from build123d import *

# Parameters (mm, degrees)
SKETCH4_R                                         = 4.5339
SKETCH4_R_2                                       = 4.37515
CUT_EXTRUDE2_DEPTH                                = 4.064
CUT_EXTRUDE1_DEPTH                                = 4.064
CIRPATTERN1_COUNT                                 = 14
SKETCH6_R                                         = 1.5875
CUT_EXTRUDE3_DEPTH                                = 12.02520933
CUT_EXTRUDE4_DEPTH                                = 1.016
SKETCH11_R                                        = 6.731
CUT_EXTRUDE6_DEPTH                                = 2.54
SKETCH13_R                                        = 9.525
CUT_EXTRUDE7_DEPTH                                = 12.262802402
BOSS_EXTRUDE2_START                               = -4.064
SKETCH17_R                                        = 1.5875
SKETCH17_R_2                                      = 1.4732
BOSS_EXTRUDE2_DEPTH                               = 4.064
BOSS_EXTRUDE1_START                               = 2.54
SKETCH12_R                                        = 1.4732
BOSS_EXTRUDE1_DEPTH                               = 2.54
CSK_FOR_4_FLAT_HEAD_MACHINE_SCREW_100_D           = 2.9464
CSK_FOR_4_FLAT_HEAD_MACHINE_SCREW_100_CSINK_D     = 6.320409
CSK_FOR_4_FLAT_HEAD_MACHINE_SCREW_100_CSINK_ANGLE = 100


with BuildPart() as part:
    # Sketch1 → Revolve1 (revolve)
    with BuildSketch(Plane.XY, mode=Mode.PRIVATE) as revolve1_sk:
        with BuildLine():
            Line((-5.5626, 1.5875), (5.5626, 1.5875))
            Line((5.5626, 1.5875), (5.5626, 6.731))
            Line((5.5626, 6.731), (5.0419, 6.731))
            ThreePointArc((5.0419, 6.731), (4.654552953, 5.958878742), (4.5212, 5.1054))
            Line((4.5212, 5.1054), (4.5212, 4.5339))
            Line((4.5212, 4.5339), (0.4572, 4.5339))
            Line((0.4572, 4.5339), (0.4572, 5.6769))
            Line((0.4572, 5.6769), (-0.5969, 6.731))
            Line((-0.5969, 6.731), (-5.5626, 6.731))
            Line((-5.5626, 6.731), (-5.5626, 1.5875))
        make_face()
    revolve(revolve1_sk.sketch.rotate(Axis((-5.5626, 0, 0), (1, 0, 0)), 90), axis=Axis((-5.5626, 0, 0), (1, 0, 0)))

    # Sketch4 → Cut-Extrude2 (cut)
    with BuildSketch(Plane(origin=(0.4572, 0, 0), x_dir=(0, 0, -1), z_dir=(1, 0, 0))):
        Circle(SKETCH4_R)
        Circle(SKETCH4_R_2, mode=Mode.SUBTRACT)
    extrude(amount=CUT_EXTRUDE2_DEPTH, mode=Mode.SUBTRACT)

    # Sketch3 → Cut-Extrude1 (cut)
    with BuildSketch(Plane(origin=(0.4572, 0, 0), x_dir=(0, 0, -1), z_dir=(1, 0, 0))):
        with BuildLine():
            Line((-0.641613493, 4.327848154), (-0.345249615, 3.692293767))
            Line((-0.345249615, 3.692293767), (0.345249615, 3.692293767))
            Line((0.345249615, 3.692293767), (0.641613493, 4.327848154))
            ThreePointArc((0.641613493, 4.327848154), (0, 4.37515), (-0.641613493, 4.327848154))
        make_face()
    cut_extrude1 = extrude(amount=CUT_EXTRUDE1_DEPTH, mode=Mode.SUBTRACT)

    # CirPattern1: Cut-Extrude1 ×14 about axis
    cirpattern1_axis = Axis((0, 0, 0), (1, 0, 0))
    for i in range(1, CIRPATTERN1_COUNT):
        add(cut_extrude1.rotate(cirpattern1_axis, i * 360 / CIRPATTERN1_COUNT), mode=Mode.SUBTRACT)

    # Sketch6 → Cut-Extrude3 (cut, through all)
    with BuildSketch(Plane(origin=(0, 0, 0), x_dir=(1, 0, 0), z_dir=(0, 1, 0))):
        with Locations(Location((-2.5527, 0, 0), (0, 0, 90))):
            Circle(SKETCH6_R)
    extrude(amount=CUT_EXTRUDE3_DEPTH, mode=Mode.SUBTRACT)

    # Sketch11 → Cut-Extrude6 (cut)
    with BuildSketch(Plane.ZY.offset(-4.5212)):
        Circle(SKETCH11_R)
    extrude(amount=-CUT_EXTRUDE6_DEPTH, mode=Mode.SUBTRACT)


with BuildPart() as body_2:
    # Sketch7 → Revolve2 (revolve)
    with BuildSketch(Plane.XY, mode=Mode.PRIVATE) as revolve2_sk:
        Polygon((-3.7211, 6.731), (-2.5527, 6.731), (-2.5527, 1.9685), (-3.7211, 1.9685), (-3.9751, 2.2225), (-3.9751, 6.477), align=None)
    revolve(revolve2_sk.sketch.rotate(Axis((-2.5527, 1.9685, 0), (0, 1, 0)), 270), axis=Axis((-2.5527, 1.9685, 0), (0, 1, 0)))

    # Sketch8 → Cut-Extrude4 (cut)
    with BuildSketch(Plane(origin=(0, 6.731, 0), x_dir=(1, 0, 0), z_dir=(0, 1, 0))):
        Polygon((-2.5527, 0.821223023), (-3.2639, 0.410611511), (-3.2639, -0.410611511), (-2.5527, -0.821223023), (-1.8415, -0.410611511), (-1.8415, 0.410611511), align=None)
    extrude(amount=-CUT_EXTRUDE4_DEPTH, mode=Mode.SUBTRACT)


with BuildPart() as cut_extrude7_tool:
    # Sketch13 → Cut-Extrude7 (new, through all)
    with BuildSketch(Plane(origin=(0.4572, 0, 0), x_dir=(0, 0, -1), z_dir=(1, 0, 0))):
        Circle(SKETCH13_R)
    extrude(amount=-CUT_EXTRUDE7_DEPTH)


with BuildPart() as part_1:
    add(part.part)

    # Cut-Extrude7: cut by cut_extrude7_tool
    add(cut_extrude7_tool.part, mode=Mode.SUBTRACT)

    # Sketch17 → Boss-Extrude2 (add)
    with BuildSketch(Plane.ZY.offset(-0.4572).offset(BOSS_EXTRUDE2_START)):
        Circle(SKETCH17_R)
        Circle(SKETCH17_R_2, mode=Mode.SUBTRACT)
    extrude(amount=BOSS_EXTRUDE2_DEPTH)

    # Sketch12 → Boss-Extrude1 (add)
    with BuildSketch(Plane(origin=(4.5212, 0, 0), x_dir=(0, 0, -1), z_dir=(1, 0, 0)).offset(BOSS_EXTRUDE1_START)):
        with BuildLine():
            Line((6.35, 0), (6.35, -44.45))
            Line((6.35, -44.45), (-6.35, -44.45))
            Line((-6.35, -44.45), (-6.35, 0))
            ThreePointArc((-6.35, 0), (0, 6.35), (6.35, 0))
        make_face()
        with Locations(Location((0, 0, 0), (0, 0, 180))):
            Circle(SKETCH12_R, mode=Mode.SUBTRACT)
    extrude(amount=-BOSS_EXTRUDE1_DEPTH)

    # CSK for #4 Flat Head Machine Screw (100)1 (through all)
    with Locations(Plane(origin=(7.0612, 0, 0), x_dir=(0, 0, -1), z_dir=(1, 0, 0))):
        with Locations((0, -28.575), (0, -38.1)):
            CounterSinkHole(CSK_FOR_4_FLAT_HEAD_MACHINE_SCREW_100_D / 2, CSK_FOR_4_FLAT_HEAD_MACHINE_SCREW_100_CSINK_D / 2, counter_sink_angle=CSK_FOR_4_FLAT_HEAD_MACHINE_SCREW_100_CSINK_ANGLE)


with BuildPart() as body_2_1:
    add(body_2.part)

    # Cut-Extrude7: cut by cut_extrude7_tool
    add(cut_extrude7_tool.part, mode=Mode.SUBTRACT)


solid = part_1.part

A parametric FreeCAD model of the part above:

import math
import FreeCAD as App
import Part
import Sketcher
from FreeCAD import Vector
Q = App.Units.Quantity

doc = App.newDocument("Part")
body = doc.addObject("PartDesign::Body", "Body")

# Sketch on XY plane
sketch1 = body.newObject("Sketcher::SketchObject", "Sketch")
sketch1.AttachmentSupport = (doc.getObject("XY_Plane"), [""])
sketch1.MapMode = "FlatFace"
sketch1.addGeometry([
    Part.LineSegment(Vector(-5.6, 1.6, 0), Vector(5.6, 1.6, 0)),  # 0
    Part.LineSegment(Vector(5.6, 1.6, 0), Vector(5.6, 6.7, 0)),  # 1
    Part.LineSegment(Vector(5.6, 6.7, 0), Vector(5, 6.7, 0)),  # 2
    Part.ArcOfCircle(Part.Circle(Vector(7.3, 5.1, 0), Vector(0, 0, 1), 2.8), math.radians(144), math.radians(180)),  # 3
    Part.LineSegment(Vector(4.5, 5.1, 0), Vector(4.5, 4.5, 0)),  # 4
    Part.LineSegment(Vector(4.5, 4.5, 0), Vector(0.5, 4.5, 0)),  # 5
    Part.LineSegment(Vector(0.5, 4.5, 0), Vector(0.5, 5.7, 0)),  # 6
    Part.LineSegment(Vector(0.5, 5.7, 0), Vector(-0.6, 6.7, 0)),  # 7
    Part.LineSegment(Vector(-0.6, 6.7, 0), Vector(-5.6, 6.7, 0)),  # 8
    Part.LineSegment(Vector(-5.6, 6.7, 0), Vector(-5.6, 1.6, 0)),  # 9
], False)
sketch1.addConstraint([
    Sketcher.Constraint("Coincident", 0, 2, 1, 1),
    Sketcher.Constraint("Coincident", 1, 2, 2, 1),
    Sketcher.Constraint("Coincident", 2, 2, 3, 1),
    Sketcher.Constraint("Tangent", 3, 2, 4, 1),
    Sketcher.Constraint("Coincident", 4, 2, 5, 1),
    Sketcher.Constraint("Coincident", 5, 2, 6, 1),
    Sketcher.Constraint("Coincident", 6, 2, 7, 1),
    Sketcher.Constraint("Coincident", 7, 2, 8, 1),
    Sketcher.Constraint("Coincident", 8, 2, 9, 1),
    Sketcher.Constraint("Coincident", 9, 2, 0, 1),
    Sketcher.Constraint("Horizontal", 0),
    Sketcher.Constraint("Vertical", 1),
    Sketcher.Constraint("Horizontal", 2),
    Sketcher.Constraint("Vertical", 4),
    Sketcher.Constraint("Horizontal", 5),
    Sketcher.Constraint("Vertical", 6),
    Sketcher.Constraint("Horizontal", 8),
    Sketcher.Constraint("Vertical", 9),
    Sketcher.Constraint("Symmetric", 1, 2, 8, 2, -2),
    Sketcher.Constraint("Angle", 7, Q("135 deg")),
    Sketcher.Constraint("DistanceX", 5, 2, 5, 1, Q("0.16 in")),
    Sketcher.Constraint("DistanceX", 0, 1, 0, 2, Q("0.438 in")),
    Sketcher.Constraint("DistanceY", 6, 1, 6, 2, Q("0.045 in")),
    Sketcher.Constraint("DistanceX", 2, 2, 2, 1, Q("0.0205 in")),
    Sketcher.Constraint("DistanceX", 8, 2, 8, 1, Q("0.1955 in")),
    Sketcher.Constraint("DistanceY", 1, 1, 1, 2, Q("0.2025 in")),
    Sketcher.Constraint("DistanceY", 4, 2, 4, 1, Q("0.0225 in")),
    Sketcher.Constraint("DistanceY", -1, 1, 3, 3, Q("0.201 in")),
    Sketcher.Constraint("DistanceY", -1, 1, 0, 2, Q("0.0625 in")),
])
revolution = body.newObject("PartDesign::Revolution", "Revolution")
revolution.Profile = sketch1
revolution.ReferenceAxis = (sketch1, ["H_Axis"])
revolution.Angle = 360

# Sketch on YZ plane
sketch2 = body.newObject("Sketcher::SketchObject", "Sketch001")
sketch2.AttachmentSupport = (doc.getObject("YZ_Plane"), [""])
sketch2.MapMode = "FlatFace"
sketch2.AttachmentOffset = App.Placement(Vector(0, 0, 0.018 * 25.4), App.Rotation())
sketch2.addGeometry([
    Part.Circle(Vector(0, 0, 0), Vector(0, 0, 1), 4.5),
    Part.Circle(Vector(0, 0, 0), Vector(0, 0, 1), 4.4),
], False)
sketch2.addConstraint([
    Sketcher.Constraint("Coincident", 0, 3, -1, 1),
    Sketcher.Constraint("Coincident", 1, 3, -1, 1),
    Sketcher.Constraint("Diameter", 0, Q("0.357 in")),
    Sketcher.Constraint("Diameter", 1, Q("0.3445 in")),
])
pocket1 = body.newObject("PartDesign::Pocket", "Pocket")
pocket1.Profile = sketch2
pocket1.Length = Q("0.16 in")
pocket1.Reversed = True

# Sketch on YZ plane
sketch3 = body.newObject("Sketcher::SketchObject", "Sketch002")
sketch3.AttachmentSupport = (doc.getObject("YZ_Plane"), [""])
sketch3.MapMode = "FlatFace"
sketch3.AttachmentOffset = App.Placement(Vector(0, 0, 0.018 * 25.4), App.Rotation())
sketch3.addGeometry([
    Part.LineSegment(Vector(4.3, 0.6, 0), Vector(3.7, 0.3, 0)),
    Part.LineSegment(Vector(3.7, 0.3, 0), Vector(3.7, -0.3, 0)),
    Part.LineSegment(Vector(3.7, -0.3, 0), Vector(4.3, -0.6, 0)),
    Part.ArcOfCircle(Part.Circle(Vector(0, 0, 0), Vector(0, 0, 1), 4.4), math.radians(-8.43), math.radians(8.43)),
], False)
sketch3.addConstraint([
    Sketcher.Constraint("Coincident", 0, 2, 1, 1),
    Sketcher.Constraint("Coincident", 1, 2, 2, 1),
    Sketcher.Constraint("Coincident", 2, 2, 3, 1),
    Sketcher.Constraint("Coincident", 3, 2, 0, 1),
    Sketcher.Constraint("Vertical", 1),
    Sketcher.Constraint("Coincident", 3, 3, -1, 1),
    Sketcher.Constraint("Vertical", 2, 2, 3, 2),
    Sketcher.Constraint("Equal", 0, 2),
    Sketcher.Constraint("Angle", 0, Q("-155 deg")),
    Sketcher.Constraint("Radius", 3, Q("4.37515 mm")),
    Sketcher.Constraint("DistanceY", 1, 2, 1, 1, Q("0.690499 mm")),
    Sketcher.Constraint("DistanceX", -1, 1, 2, 2, Q("4.327848 mm")),
])
pocket2 = body.newObject("PartDesign::Pocket", "Pocket001")
pocket2.Profile = sketch3
pocket2.Length = Q("0.16 in")
pocket2.Reversed = True
doc.recompute()

polarpattern = body.newObject("PartDesign::PolarPattern", "PolarPattern")
polarpattern.Originals = [pocket2]
polarpattern.Axis = (doc.getObject("X_Axis"), [""])
polarpattern.Angle = 360
polarpattern.Occurrences = 14
body.Tip = polarpattern

# Sketch on XZ plane
sketch4 = body.newObject("Sketcher::SketchObject", "Sketch003")
sketch4.AttachmentSupport = (doc.getObject("XZ_Plane"), [""])
sketch4.MapMode = "FlatFace"
sketch4.addGeometry(Part.Circle(Vector(-2.6, 0, 0), Vector(0, 0, 1), 1.6), False)
sketch4.addConstraint([
    Sketcher.Constraint("PointOnObject", 0, 3, -1),
    Sketcher.Constraint("Diameter", 0, Q("0.125 in")),
    Sketcher.Constraint("DistanceX", 0, 3, -1, 1, Q("0.1005 in")),
])
pocket3 = body.newObject("PartDesign::Pocket", "Pocket002")
pocket3.Profile = sketch4
pocket3.Type = "ThroughAll"

# Sketch on YZ plane
sketch5 = body.newObject("Sketcher::SketchObject", "Sketch004")
sketch5.AttachmentSupport = (doc.getObject("YZ_Plane"), [""])
sketch5.MapMode = "FlatFace"
sketch5.AttachmentOffset = App.Placement(Vector(0, 0, 0.178 * 25.4), App.Rotation())
sketch5.addGeometry(Part.Circle(Vector(0, 0, 0), Vector(0, 0, 1), 7), False)
sketch5.addConstraint([
    Sketcher.Constraint("Coincident", 0, 3, -1, 1),
    Sketcher.Constraint("Diameter", 0, Q("0.53 in")),
])
pocket4 = body.newObject("PartDesign::Pocket", "Pocket003")
pocket4.Profile = sketch5
pocket4.Length = Q("0.1 in")
pocket4.Reversed = True
body2 = doc.addObject("PartDesign::Body", "Body001")

# Sketch on XY plane
sketch6 = body2.newObject("Sketcher::SketchObject", "Sketch005")
sketch6.AttachmentSupport = (doc.getObject("XY_Plane001"), [""])
sketch6.MapMode = "FlatFace"
sketch6.addGeometry([
    Part.LineSegment(Vector(-2.55, 6.73, 0), Vector(-3.72, 6.73, 0)),  # 0
    Part.LineSegment(Vector(-3.72, 6.73, 0), Vector(-3.98, 6.48, 0)),  # 1
    Part.LineSegment(Vector(-3.98, 6.48, 0), Vector(-3.98, 2.22, 0)),  # 2
    Part.LineSegment(Vector(-3.98, 2.22, 0), Vector(-3.72, 1.97, 0)),  # 3
    Part.LineSegment(Vector(-3.72, 1.97, 0), Vector(-2.55, 1.97, 0)),  # 4
    Part.LineSegment(Vector(-2.55, 1.97, 0), Vector(-2.55, 6.73, 0)),  # 5
], False)
sketch6.addGeometry(Part.LineSegment(Vector(-2.55, 1.97, 0), Vector(-2.55, 6.73, 0)), True)  # axis
sketch6.addConstraint([
    Sketcher.Constraint("Coincident", 0, 2, 1, 1),
    Sketcher.Constraint("Coincident", 1, 2, 2, 1),
    Sketcher.Constraint("Coincident", 2, 2, 3, 1),
    Sketcher.Constraint("Coincident", 3, 2, 4, 1),
    Sketcher.Constraint("Coincident", 4, 2, 5, 1),
    Sketcher.Constraint("Coincident", 5, 2, 0, 1),
    Sketcher.Constraint("Horizontal", 0),
    Sketcher.Constraint("Vertical", 2),
    Sketcher.Constraint("Horizontal", 4),
    Sketcher.Constraint("Vertical", 5),
    Sketcher.Constraint("Vertical", 6),
    Sketcher.Constraint("Coincident", 6, 1, 4, 2),
    Sketcher.Constraint("Perpendicular", 1, 3),
    Sketcher.Constraint("Horizontal", 0, 2, 6, 2),
    Sketcher.Constraint("Vertical", 0, 2, 3, 2),
    Sketcher.Constraint("Equal", 1, 3),
    Sketcher.Constraint("DistanceX", 0, 2, 0, 1, Q("0.046 in")),
    Sketcher.Constraint("DistanceY", 5, 1, 5, 2, Q("0.1875 in")),
    Sketcher.Constraint("DistanceX", 1, 2, 0, 2, Q("0.01 in")),
    Sketcher.Constraint("DistanceY", -1, 1, 0, 2, Q("0.265 in")),
    Sketcher.Constraint("DistanceX", 0, 2, -1, 1, Q("0.1465 in")),
])
revolution2 = body2.newObject("PartDesign::Revolution", "Revolution001")
revolution2.Profile = sketch6
revolution2.ReferenceAxis = (sketch6, ["Axis0"])
revolution2.Angle = 360

# Sketch on XZ plane
sketch7 = body2.newObject("Sketcher::SketchObject", "Sketch006")
sketch7.AttachmentSupport = (doc.getObject("XZ_Plane001"), [""])
sketch7.MapMode = "FlatFace"
sketch7.AttachmentOffset = App.Placement(Vector(0, 0, -0.265 * 25.4), App.Rotation())
sketch7.addGeometry([
    Part.LineSegment(Vector(-2.6, -0.8, 0), Vector(-3.3, -0.4, 0)),  # 0
    Part.LineSegment(Vector(-3.3, -0.4, 0), Vector(-3.3, 0.4, 0)),  # 1
    Part.LineSegment(Vector(-3.3, 0.4, 0), Vector(-2.6, 0.8, 0)),  # 2
    Part.LineSegment(Vector(-2.6, 0.8, 0), Vector(-1.8, 0.4, 0)),  # 3
    Part.LineSegment(Vector(-1.8, 0.4, 0), Vector(-1.8, -0.4, 0)),  # 4
    Part.LineSegment(Vector(-1.8, -0.4, 0), Vector(-2.6, -0.8, 0)),  # 5
], False)
sketch7.addConstraint([
    Sketcher.Constraint("Coincident", 0, 2, 1, 1),
    Sketcher.Constraint("Coincident", 1, 2, 2, 1),
    Sketcher.Constraint("Coincident", 2, 2, 3, 1),
    Sketcher.Constraint("Coincident", 3, 2, 4, 1),
    Sketcher.Constraint("Coincident", 4, 2, 5, 1),
    Sketcher.Constraint("Coincident", 5, 2, 0, 1),
    Sketcher.Constraint("Vertical", 1),
    Sketcher.Constraint("Vertical", 4),
    Sketcher.Constraint("Symmetric", 2, 2, 5, 2, -1),
    Sketcher.Constraint("Parallel", 0, 3),
    Sketcher.Constraint("Parallel", 2, 5),
    Sketcher.Constraint("Horizontal", 1, 2, 3, 2),
    Sketcher.Constraint("Horizontal", 0, 2, 4, 2),
    Sketcher.Constraint("Angle", 0, Q("150 deg")),
    Sketcher.Constraint("DistanceX", 1, 2, 2, 2, Q("0.028 in")),
    Sketcher.Constraint("DistanceX", 0, 2, -1, 1, Q("0.1285 in")),
    Sketcher.Constraint("DistanceY", 1, 1, 1, 2, Q("0.821223 mm")),
])
pocket5 = body2.newObject("PartDesign::Pocket", "Pocket004")
pocket5.Profile = sketch7
pocket5.Length = Q("0.04 in")
pocket5.Reversed = True
body3 = doc.addObject("PartDesign::Body", "Body002")

# Sketch on YZ plane
sketch8 = body3.newObject("Sketcher::SketchObject", "Sketch007")
sketch8.AttachmentSupport = (doc.getObject("YZ_Plane002"), [""])
sketch8.MapMode = "FlatFace"
sketch8.AttachmentOffset = App.Placement(Vector(0, 0, 0.018 * 25.4), App.Rotation())
sketch8.addGeometry(Part.Circle(Vector(0, 0, 0), Vector(0, 0, 1), 10), False)
sketch8.addConstraint([
    Sketcher.Constraint("Coincident", 0, 3, -1, 1),
    Sketcher.Constraint("Diameter", 0, Q("0.75 in")),
])
pad1 = body3.newObject("PartDesign::Pad", "Pad")
pad1.Profile = sketch8
pad1.Length = 12.262802
pad1.Reversed = True
doc.recompute()

body4 = doc.addObject("PartDesign::Body", "Body003")
body4.BaseFeature = body3
boolean = body.newObject("PartDesign::Boolean", "Boolean")
boolean.Type = "Cut"
boolean.addObjects([body4])
doc.recompute()

# Sketch on YZ plane
sketch9 = body.newObject("Sketcher::SketchObject", "Sketch008")
sketch9.AttachmentSupport = (doc.getObject("YZ_Plane"), [""])
sketch9.MapMode = "FlatFace"
sketch9.AttachmentOffset = App.Placement(Vector(0, 0, 0.178 * 25.4), App.Rotation())
sketch9.addGeometry([
    Part.Circle(Vector(0, 0, 0), Vector(0, 0, 1), 1.6),
    Part.Circle(Vector(0, 0, 0), Vector(0, 0, 1), 1.5),
], False)
sketch9.addConstraint([
    Sketcher.Constraint("Coincident", 0, 3, -1, 1),
    Sketcher.Constraint("Coincident", 1, 3, -1, 1),
    Sketcher.Constraint("Diameter", 0, Q("0.125 in")),
    Sketcher.Constraint("Diameter", 1, Q("0.116 in")),
])
pad2 = body.newObject("PartDesign::Pad", "Pad001")
pad2.Profile = sketch9
pad2.Length = Q("0.16 in")
pad2.Reversed = True

# Sketch on YZ plane
sketch10 = body.newObject("Sketcher::SketchObject", "Sketch009")
sketch10.AttachmentSupport = (doc.getObject("YZ_Plane"), [""])
sketch10.MapMode = "FlatFace"
sketch10.AttachmentOffset = App.Placement(Vector(0, 0, 0.278 * 25.4), App.Rotation())
sketch10.addGeometry([
    Part.LineSegment(Vector(-44.5, -6.3, 0), Vector(0, -6.3, 0)),  # 0
    Part.ArcOfCircle(Part.Circle(Vector(0, 0, 0), Vector(0, 0, 1), 6.3), math.radians(-90), math.radians(90)),  # 1
    Part.LineSegment(Vector(0, 6.3, 0), Vector(-44.5, 6.3, 0)),  # 2
    Part.LineSegment(Vector(-44.5, 6.3, 0), Vector(-44.5, -6.3, 0)),  # 3
    Part.Circle(Vector(0, 0, 0), Vector(0, 0, 1), 1.5),  # 4
], False)
sketch10.addConstraint([
    Sketcher.Constraint("Tangent", 0, 2, 1, 1),
    Sketcher.Constraint("Tangent", 1, 2, 2, 1),
    Sketcher.Constraint("Coincident", 2, 2, 3, 1),
    Sketcher.Constraint("Coincident", 3, 2, 0, 1),
    Sketcher.Constraint("Horizontal", 0),
    Sketcher.Constraint("Horizontal", 2),
    Sketcher.Constraint("Vertical", 3),
    Sketcher.Constraint("Coincident", 1, 3, -1, 1),
    Sketcher.Constraint("Coincident", 4, 3, -1, 1),
    Sketcher.Constraint("Radius", 1, Q("0.25 in")),
    Sketcher.Constraint("Diameter", 4, Q("0.116 in")),
    Sketcher.Constraint("DistanceX", 0, 1, 0, 2, Q("1.75 in")),
])
pad3 = body.newObject("PartDesign::Pad", "Pad002")
pad3.Profile = sketch10
pad3.Length = Q("0.1 in")
pad3.Reversed = True

# Sketch on YZ plane
sketch11 = body.newObject("Sketcher::SketchObject", "Sketch010")
sketch11.AttachmentSupport = (doc.getObject("YZ_Plane"), [""])
sketch11.MapMode = "FlatFace"
sketch11.AttachmentOffset = App.Placement(Vector(0, 0, 0.278 * 25.4), App.Rotation())
sketch11.addGeometry([
    Part.Circle(Vector(-28.6, 0, 0), Vector(0, 0, 1), 1.5),
    Part.Circle(Vector(-38.1, 0, 0), Vector(0, 0, 1), 1.5),
], False)
sketch11.addConstraint([
    Sketcher.Constraint("Equal", 0, 1),
    Sketcher.Constraint("PointOnObject", 0, 3, -1),
    Sketcher.Constraint("PointOnObject", 1, 3, -1),
    Sketcher.Constraint("Diameter", 0, Q("0.116 in")),
    Sketcher.Constraint("DistanceX", 1, 3, -1, 1, Q("1.5 in")),
    Sketcher.Constraint("DistanceX", 0, 3, -1, 1, Q("1.125 in")),
])
doc.recompute()
hole = body.newObject("PartDesign::Hole", "Hole")
hole.Profile = sketch11
hole.ThreadType = "None"
hole.Diameter = Q("0.116 in")
hole.DepthType = "ThroughAll"
hole.HoleCutType = "Countersink"
hole.HoleCutDiameter = 6.320409
hole.HoleCutCountersinkAngle = 100
doc.recompute()

boolean2 = body2.newObject("PartDesign::Boolean", "Boolean001")
boolean2.Type = "Cut"
boolean2.addObjects([body3])

doc.recompute()
